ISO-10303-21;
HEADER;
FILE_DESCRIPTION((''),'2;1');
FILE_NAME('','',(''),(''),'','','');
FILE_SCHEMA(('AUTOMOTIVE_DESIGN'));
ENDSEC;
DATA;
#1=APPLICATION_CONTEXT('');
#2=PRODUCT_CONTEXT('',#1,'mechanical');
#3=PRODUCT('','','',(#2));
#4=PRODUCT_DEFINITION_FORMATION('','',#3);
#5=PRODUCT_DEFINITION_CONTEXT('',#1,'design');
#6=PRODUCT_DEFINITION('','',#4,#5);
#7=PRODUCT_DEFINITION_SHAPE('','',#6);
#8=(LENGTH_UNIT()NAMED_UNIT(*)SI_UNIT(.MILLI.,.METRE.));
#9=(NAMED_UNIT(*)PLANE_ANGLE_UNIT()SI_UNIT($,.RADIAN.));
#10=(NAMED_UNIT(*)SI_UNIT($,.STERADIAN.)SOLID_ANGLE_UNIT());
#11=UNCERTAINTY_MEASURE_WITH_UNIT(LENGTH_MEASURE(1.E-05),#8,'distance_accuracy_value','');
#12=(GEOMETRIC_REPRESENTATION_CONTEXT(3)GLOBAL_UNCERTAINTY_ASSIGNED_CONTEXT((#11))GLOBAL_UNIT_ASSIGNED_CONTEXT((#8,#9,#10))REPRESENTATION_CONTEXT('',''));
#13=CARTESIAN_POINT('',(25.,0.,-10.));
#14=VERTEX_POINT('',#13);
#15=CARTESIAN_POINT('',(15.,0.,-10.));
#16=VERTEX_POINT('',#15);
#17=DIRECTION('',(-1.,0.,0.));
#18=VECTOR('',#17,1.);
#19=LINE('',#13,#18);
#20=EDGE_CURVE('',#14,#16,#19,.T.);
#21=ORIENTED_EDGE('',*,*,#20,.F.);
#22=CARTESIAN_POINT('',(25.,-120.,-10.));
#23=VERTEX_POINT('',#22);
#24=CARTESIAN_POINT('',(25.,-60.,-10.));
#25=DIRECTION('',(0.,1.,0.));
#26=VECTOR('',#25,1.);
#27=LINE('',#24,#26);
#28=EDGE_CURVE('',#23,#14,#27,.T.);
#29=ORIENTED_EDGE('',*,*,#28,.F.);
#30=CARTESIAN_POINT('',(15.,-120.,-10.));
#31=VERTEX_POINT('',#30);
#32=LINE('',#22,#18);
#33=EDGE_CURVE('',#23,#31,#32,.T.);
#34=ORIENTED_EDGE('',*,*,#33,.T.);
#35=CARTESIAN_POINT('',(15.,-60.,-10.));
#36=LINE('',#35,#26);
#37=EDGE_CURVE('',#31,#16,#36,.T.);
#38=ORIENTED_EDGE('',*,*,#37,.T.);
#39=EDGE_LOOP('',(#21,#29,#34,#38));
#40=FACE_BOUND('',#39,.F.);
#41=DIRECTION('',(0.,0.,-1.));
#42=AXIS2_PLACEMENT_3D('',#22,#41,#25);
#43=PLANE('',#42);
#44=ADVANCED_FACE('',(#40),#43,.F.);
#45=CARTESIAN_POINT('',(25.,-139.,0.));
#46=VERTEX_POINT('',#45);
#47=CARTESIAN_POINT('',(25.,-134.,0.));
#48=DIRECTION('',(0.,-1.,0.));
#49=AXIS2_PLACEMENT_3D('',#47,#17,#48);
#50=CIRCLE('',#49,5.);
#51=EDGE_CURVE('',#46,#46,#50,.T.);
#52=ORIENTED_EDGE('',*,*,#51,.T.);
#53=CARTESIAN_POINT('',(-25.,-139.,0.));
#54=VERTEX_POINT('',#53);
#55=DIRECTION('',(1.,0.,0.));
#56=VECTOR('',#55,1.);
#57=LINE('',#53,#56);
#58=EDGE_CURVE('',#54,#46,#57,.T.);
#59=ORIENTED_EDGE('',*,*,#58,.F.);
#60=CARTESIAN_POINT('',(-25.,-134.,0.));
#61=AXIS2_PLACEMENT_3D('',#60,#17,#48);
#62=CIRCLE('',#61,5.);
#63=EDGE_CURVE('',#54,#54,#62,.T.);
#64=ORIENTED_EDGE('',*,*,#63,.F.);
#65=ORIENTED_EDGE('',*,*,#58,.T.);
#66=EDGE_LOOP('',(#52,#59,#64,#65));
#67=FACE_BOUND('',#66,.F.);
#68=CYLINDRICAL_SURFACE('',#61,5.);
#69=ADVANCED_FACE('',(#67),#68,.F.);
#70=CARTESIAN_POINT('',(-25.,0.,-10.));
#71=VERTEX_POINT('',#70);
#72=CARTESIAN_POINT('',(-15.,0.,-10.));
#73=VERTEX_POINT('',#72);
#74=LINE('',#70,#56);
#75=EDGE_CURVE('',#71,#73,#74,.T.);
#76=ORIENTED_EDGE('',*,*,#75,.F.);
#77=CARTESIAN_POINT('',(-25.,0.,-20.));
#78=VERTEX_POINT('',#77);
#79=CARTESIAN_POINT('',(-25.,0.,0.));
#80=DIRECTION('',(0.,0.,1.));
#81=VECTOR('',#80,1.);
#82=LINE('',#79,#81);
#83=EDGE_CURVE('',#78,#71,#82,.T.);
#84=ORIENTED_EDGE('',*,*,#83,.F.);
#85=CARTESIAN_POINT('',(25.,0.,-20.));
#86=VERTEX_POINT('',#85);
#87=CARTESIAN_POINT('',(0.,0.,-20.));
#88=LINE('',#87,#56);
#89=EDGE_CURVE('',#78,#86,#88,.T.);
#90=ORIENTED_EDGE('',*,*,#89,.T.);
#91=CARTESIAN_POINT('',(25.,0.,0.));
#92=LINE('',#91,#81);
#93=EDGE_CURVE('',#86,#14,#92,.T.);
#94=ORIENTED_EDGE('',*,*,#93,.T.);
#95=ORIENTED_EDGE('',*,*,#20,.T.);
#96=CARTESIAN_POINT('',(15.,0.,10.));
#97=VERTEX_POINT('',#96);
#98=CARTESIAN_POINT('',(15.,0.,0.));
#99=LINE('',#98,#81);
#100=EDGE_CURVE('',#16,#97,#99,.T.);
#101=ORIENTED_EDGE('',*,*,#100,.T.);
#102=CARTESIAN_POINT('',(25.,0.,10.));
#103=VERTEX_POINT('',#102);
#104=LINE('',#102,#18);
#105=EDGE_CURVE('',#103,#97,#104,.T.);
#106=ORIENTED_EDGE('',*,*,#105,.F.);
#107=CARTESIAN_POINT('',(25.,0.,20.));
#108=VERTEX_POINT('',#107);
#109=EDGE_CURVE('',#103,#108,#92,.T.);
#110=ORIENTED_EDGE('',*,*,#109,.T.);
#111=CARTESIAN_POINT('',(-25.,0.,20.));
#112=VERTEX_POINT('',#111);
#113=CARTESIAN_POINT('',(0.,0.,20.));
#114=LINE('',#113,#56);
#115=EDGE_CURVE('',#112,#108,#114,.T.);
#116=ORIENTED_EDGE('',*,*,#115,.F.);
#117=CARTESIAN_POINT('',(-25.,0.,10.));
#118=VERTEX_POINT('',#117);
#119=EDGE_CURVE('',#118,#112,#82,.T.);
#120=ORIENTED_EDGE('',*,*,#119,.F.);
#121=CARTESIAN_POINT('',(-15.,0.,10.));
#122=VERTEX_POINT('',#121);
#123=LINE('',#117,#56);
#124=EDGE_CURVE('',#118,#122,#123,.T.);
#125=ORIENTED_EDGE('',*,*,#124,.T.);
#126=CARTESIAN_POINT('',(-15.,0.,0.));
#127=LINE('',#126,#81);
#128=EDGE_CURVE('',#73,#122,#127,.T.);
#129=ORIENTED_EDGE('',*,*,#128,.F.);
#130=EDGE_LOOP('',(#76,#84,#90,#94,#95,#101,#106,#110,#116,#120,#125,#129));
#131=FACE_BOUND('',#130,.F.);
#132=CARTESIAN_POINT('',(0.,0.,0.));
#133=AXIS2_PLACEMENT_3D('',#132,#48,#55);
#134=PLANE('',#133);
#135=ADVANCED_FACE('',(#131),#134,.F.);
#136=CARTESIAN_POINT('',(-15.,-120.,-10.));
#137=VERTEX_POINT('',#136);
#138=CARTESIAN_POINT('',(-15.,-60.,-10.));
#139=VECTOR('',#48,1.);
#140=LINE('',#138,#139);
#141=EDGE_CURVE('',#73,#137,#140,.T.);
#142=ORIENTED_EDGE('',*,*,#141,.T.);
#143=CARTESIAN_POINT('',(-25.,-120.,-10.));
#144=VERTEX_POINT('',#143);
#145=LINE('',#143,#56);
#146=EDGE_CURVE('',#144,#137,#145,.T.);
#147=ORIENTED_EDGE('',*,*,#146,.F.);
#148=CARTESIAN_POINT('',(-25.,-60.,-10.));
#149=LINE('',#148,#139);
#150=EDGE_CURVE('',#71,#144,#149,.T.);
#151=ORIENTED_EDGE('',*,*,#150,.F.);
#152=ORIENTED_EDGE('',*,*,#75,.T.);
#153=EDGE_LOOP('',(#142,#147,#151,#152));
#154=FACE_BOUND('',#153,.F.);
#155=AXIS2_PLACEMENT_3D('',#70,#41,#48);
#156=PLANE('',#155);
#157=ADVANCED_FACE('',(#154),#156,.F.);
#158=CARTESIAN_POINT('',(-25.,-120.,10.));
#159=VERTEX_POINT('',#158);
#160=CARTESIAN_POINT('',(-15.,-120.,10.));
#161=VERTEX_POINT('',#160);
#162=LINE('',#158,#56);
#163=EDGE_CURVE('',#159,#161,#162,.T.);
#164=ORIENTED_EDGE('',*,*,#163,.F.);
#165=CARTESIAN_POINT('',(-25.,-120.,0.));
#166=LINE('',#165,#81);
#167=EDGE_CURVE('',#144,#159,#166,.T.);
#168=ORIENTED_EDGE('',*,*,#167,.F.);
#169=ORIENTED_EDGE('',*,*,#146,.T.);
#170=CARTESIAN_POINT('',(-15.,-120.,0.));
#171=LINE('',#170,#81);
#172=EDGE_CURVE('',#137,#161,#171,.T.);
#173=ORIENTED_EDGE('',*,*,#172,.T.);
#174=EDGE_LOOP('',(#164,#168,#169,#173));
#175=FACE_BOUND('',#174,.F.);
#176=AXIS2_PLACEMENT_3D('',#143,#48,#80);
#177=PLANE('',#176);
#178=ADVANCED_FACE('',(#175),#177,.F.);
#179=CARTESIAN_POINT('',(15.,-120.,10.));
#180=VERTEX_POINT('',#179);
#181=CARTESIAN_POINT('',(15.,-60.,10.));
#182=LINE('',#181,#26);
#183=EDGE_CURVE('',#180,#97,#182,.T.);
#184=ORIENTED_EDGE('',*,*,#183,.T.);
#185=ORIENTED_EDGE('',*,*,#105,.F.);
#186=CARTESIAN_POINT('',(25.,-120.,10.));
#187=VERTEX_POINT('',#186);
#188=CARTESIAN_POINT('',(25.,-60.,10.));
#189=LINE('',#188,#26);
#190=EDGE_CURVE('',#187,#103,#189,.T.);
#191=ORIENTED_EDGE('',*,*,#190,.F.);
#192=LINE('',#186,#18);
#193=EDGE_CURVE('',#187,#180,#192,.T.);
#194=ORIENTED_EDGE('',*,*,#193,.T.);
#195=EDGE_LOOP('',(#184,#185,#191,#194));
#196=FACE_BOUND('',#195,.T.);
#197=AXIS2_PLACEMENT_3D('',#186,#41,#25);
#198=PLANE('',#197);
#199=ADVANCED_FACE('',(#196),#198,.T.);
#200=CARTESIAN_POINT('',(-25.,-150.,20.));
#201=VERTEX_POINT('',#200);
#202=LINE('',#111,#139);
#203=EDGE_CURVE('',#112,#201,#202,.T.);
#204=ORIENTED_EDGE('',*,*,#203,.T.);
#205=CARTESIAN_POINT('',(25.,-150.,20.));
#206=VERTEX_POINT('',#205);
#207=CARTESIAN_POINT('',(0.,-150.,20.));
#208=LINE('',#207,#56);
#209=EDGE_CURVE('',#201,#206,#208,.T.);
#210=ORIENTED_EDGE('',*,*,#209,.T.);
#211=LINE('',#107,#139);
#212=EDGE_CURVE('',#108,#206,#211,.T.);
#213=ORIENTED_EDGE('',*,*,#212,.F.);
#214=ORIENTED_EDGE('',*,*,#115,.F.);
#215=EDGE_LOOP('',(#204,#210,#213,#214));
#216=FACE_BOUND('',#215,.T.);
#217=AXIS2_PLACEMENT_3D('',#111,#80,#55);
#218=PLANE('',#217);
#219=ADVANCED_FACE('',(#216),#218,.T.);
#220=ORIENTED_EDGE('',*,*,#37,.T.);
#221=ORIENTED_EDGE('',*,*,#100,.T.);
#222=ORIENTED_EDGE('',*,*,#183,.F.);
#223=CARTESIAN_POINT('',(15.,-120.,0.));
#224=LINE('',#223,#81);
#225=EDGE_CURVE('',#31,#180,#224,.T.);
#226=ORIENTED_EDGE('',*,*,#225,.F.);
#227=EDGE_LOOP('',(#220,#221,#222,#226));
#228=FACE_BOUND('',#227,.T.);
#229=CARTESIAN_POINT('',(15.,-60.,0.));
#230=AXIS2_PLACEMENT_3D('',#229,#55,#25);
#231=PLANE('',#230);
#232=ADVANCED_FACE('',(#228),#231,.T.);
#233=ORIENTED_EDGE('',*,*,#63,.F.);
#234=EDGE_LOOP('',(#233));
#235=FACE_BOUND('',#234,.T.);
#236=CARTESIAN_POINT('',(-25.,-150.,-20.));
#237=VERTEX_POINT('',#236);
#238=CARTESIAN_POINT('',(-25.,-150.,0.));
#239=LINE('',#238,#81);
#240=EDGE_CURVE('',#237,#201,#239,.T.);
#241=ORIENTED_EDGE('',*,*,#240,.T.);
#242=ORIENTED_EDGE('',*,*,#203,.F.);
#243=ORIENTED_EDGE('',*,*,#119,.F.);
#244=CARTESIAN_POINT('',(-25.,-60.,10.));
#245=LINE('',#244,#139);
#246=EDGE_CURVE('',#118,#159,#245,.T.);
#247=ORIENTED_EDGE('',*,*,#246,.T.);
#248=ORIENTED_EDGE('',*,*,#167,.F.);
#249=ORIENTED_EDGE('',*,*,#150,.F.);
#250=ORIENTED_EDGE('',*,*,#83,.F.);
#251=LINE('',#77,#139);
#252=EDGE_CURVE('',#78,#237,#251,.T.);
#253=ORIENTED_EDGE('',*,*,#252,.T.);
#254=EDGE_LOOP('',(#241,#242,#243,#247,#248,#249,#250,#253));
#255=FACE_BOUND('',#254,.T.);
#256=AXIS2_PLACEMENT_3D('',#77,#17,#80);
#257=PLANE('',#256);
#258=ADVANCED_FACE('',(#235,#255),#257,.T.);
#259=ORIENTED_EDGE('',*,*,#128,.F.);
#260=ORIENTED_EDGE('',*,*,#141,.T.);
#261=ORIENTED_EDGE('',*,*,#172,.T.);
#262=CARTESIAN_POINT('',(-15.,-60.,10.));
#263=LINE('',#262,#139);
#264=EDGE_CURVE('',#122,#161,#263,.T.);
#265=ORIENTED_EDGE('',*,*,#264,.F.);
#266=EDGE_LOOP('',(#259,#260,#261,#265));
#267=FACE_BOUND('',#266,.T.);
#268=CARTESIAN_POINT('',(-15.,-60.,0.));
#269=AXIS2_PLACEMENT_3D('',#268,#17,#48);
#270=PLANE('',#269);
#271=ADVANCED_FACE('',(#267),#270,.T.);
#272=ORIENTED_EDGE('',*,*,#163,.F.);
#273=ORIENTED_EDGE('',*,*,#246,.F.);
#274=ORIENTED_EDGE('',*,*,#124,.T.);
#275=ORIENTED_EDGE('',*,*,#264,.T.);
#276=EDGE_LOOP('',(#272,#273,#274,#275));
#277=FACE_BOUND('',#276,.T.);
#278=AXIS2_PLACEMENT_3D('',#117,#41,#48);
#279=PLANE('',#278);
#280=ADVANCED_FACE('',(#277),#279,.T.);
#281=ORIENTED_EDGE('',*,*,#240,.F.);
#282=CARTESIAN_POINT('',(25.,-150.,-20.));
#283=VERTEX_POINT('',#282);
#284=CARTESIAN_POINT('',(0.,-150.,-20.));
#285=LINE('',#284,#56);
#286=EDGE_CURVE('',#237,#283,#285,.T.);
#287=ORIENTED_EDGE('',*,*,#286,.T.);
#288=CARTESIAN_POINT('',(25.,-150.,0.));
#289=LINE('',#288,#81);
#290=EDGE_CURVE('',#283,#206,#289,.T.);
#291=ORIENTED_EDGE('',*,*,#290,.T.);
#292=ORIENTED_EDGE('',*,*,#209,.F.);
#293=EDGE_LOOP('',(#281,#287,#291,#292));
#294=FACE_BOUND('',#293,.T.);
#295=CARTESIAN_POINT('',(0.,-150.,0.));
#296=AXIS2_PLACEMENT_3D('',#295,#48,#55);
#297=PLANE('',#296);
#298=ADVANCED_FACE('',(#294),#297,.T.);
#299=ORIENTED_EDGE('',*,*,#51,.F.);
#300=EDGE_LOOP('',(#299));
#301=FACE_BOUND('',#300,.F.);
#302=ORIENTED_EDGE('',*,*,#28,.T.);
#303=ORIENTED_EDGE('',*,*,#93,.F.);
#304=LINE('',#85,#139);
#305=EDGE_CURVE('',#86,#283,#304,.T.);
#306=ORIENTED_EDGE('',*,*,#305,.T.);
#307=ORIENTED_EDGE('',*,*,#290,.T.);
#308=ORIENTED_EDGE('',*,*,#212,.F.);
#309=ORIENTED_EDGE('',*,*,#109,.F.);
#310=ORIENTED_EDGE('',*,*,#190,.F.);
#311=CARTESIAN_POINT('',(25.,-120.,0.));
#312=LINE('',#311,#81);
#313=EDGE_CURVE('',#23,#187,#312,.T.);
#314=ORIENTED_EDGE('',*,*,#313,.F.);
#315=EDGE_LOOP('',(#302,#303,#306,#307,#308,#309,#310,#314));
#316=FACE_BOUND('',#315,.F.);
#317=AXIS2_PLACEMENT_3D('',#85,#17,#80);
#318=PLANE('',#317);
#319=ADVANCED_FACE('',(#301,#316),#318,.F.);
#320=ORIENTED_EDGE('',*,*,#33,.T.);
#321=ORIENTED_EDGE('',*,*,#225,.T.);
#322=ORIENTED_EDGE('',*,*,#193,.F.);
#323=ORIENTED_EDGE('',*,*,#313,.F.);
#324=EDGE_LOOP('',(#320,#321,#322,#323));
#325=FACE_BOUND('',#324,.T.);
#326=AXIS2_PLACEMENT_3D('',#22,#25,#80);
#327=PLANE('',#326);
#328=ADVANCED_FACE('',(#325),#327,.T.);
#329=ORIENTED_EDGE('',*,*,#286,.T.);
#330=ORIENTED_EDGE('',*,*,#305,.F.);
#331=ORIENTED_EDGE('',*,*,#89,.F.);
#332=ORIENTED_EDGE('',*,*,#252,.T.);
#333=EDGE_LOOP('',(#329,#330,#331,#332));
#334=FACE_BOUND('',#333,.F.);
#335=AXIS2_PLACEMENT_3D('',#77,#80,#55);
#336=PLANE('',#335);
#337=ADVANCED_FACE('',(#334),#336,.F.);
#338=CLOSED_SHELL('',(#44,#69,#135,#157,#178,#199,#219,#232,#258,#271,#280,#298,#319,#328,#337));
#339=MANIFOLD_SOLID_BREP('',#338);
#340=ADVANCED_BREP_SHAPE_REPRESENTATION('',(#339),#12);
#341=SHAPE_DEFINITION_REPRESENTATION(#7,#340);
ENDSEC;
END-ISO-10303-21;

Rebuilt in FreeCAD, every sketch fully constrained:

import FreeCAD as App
import Part
import Sketcher

V = App.Vector
Q = App.Units.Quantity


def add_polygon(sketch, points):
    """Adds a closed chain of lines whose ends are joined by coincident constraints."""
    first, n = sketch.GeometryCount, len(points)
    for a, b in zip(points, points[1:] + points[:1]):
        sketch.addGeometry(Part.LineSegment(App.Vector(*a, 0), App.Vector(*b, 0)), False)
    for i in range(n):
        sketch.addConstraint(Sketcher.Constraint("Coincident", first + i, 2, first + (i + 1) % n, 1))

doc = App.newDocument("Part")
body = doc.addObject("PartDesign::Body", "Body")

sketch1 = body.newObject("Sketcher::SketchObject", "Sketch")
sketch1.AttachmentSupport = (doc.getObject("XZ_Plane"), [""])
sketch1.MapMode = "FlatFace"
add_polygon(sketch1, [(-25, 20), (-25, -20), (25, -20), (25, 20)])
sketch1.addConstraint([
    Sketcher.Constraint("Vertical", 0),
    Sketcher.Constraint("Horizontal", 1),
    Sketcher.Constraint("Vertical", 2),
    Sketcher.Constraint("Horizontal", 3),
    Sketcher.Constraint("Symmetric", 0, 2, 2, 2, -1, 1),
    Sketcher.Constraint("DistanceX", 1, 1, 1, 2, Q("50 mm")),
    Sketcher.Constraint("DistanceY", 0, 2, 0, 1, Q("40 mm")),
])
pad1 = body.newObject("PartDesign::Pad", "Pad")
pad1.Profile = sketch1
pad1.Length = 150
body2 = doc.addObject("PartDesign::Body", "Body001")

sketch2 = body2.newObject("Sketcher::SketchObject", "Sketch001")
sketch2.AttachmentSupport = (doc.getObject("YZ_Plane001"), [""])
sketch2.MapMode = "FlatFace"
sketch2.AttachmentOffset = App.Placement(V(0, 0, 25), App.Rotation())
add_polygon(sketch2, [(-120, 10), (-120, -10), (0, -10), (0, 10)])
sketch2.addConstraint([
    Sketcher.Constraint("Vertical", 0),
    Sketcher.Constraint("Horizontal", 1),
    Sketcher.Constraint("Vertical", 2),
    Sketcher.Constraint("Horizontal", 3),
    Sketcher.Constraint("Symmetric", 1, 2, 2, 2, -1, 1),
    Sketcher.Constraint("DistanceX", 1, 1, 1, 2, Q("120 mm")),
    Sketcher.Constraint("DistanceY", 0, 2, 0, 1, Q("20 mm")),
])
pad2 = body2.newObject("PartDesign::Pad", "Pad001")
pad2.Profile = sketch2
pad2.Length = 10
pad2.Reversed = True
doc.recompute()

boolean = body.newObject("PartDesign::Boolean", "Boolean")
boolean.Type = "Cut"
boolean.addObjects([body2])
body3 = doc.addObject("PartDesign::Body", "Body002")

sketch3 = body3.newObject("Sketcher::SketchObject", "Sketch002")
sketch3.AttachmentSupport = (doc.getObject("YZ_Plane002"), [""])
sketch3.MapMode = "FlatFace"
sketch3.AttachmentOffset = App.Placement(V(0, 0, -25), App.Rotation())
add_polygon(sketch3, [(0, 10), (0, -10), (-120, -10), (-120, 10)])
sketch3.addConstraint([
    Sketcher.Constraint("Vertical", 0),
    Sketcher.Constraint("Horizontal", 1),
    Sketcher.Constraint("Vertical", 2),
    Sketcher.Constraint("Horizontal", 3),
    Sketcher.Constraint("Symmetric", 0, 2, 3, 2, -1, 1),
    Sketcher.Constraint("DistanceX", 1, 2, 1, 1, Q("120 mm")),
    Sketcher.Constraint("DistanceY", 0, 2, 0, 1, Q("20 mm")),
])
pad3 = body3.newObject("PartDesign::Pad", "Pad002")
pad3.Profile = sketch3
pad3.Length = 10
doc.recompute()

boolean2 = body.newObject("PartDesign::Boolean", "Boolean001")
boolean2.Type = "Cut"
boolean2.addObjects([body3])
body4 = doc.addObject("PartDesign::Body", "Body003")

sketch4 = body4.newObject("Sketcher::SketchObject", "Sketch003")
sketch4.AttachmentSupport = (doc.getObject("YZ_Plane003"), [""])
sketch4.MapMode = "FlatFace"
sketch4.AttachmentOffset = App.Placement(V(0, 0, -25), App.Rotation())
sketch4.addGeometry(Part.Circle(V(-134, 0, 0), V(0, 0, 1), 5), False)
sketch4.addConstraint([
    Sketcher.Constraint("PointOnObject", 0, 3, -1),
    Sketcher.Constraint("Diameter", 0, Q("10 mm")),
    Sketcher.Constraint("DistanceX", 0, 3, -1, 1, Q("134 mm")),
])
pad4 = body4.newObject("PartDesign::Pad", "Pad003")
pad4.Profile = sketch4
pad4.Length = 60
doc.recompute()

boolean3 = body.newObject("PartDesign::Boolean", "Boolean002")
boolean3.Type = "Cut"
boolean3.addObjects([body4])

doc.recompute()
